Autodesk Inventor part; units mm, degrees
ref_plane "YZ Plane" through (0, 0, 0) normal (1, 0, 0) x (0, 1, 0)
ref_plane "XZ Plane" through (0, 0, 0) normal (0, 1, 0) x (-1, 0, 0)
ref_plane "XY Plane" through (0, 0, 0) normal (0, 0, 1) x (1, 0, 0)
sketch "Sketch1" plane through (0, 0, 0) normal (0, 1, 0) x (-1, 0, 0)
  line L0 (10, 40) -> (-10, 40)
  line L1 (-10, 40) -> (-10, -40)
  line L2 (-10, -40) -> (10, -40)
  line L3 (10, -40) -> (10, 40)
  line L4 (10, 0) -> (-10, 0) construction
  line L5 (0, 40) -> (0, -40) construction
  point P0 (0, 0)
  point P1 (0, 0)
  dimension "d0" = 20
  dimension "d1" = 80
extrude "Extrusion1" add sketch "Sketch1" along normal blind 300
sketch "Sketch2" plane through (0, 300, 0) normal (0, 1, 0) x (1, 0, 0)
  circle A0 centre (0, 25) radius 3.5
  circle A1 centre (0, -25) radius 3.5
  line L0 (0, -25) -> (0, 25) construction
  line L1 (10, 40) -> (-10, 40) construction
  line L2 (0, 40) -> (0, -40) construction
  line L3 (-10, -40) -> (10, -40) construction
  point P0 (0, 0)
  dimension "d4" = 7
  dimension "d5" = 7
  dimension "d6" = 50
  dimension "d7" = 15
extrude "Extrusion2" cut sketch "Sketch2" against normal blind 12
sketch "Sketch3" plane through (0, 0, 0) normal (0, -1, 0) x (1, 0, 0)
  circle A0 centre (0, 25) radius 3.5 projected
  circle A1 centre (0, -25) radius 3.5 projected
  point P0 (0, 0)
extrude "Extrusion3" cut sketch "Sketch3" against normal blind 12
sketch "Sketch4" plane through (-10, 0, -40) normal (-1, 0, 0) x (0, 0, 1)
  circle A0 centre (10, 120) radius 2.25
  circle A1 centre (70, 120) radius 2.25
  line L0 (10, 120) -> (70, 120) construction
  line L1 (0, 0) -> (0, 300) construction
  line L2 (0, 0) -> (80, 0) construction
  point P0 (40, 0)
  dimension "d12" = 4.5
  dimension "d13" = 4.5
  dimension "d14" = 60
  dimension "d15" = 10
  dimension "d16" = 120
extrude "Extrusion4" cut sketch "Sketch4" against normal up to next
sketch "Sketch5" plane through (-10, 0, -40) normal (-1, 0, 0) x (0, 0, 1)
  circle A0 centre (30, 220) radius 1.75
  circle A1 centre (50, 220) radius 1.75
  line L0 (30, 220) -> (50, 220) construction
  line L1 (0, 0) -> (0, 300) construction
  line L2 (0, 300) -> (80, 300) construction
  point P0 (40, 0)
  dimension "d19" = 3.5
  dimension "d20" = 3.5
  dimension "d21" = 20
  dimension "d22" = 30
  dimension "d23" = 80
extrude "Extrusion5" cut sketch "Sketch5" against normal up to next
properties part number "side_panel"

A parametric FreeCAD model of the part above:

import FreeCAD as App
import Part
import Sketcher


def add_polygon(sketch, points):
    """Adds a closed chain of lines whose ends are joined by coincident constraints."""
    first, n = sketch.GeometryCount, len(points)
    for a, b in zip(points, points[1:] + points[:1]):
        sketch.addGeometry(Part.LineSegment(App.Vector(*a, 0), App.Vector(*b, 0)), False)
    for i in range(n):
        sketch.addConstraint(Sketcher.Constraint("Coincident", first + i, 2, first + (i + 1) % n, 1))

doc = App.newDocument("Part")
body = doc.addObject("PartDesign::Body", "Body")

# Sketch on XZ plane
sketch1 = doc.addObject("Sketcher::SketchObject", "Sketch")
body.addObject(sketch1)
sketch1.AttachmentSupport = (doc.XZ_Plane, [""])
sketch1.MapMode = "FlatFace"
add_polygon(sketch1, [(-10, -40), (-10, 40), (10, 40), (10, -40)])  # lines 0-3
sketch1.addConstraint(Sketcher.Constraint("Vertical", 0))
sketch1.addConstraint(Sketcher.Constraint("Horizontal", 1))
sketch1.addConstraint(Sketcher.Constraint("Vertical", 2))
sketch1.addConstraint(Sketcher.Constraint("Horizontal", 3))
sketch1.addConstraint(Sketcher.Constraint("Symmetric", 0, 2, 2, 2, -1, 1))
sketch1.addConstraint(Sketcher.Constraint("DistanceX", 1, 1, 1, 2, 20.0))
sketch1.addConstraint(Sketcher.Constraint("DistanceY", 0, 1, 0, 2, 80.0))
pad1 = doc.addObject("PartDesign::Pad", "Pad")
body.addObject(pad1)
pad1.Profile = sketch1
pad1.Length = 300
pad1.Reversed = True

# Sketch on XZ plane
sketch2 = doc.addObject("Sketcher::SketchObject", "Sketch001")
body.addObject(sketch2)
sketch2.AttachmentSupport = (doc.XZ_Plane, [""])
sketch2.MapMode = "FlatFace"
sketch2.AttachmentOffset = App.Placement(App.Vector(0, 0, -300), App.Rotation())
sketch2.addGeometry(Part.Circle(App.Vector(0, -25, 0), App.Vector(0, 0, 1), 3.5), False)
sketch2.addGeometry(Part.Circle(App.Vector(0, 25, 0), App.Vector(0, 0, 1), 3.5), False)
sketch2.addConstraint(Sketcher.Constraint("Equal", 0, 1))
sketch2.addConstraint(Sketcher.Constraint("Symmetric", 0, 3, 1, 3, -1, 1))
sketch2.addConstraint(Sketcher.Constraint("PointOnObject", 0, 3, -2))
sketch2.addConstraint(Sketcher.Constraint("Diameter", 0, 7.0))
sketch2.addConstraint(Sketcher.Constraint("DistanceY", 0, 3, 1, 3, 50.0))
pocket1 = doc.addObject("PartDesign::Pocket", "Pocket")
body.addObject(pocket1)
pocket1.Profile = sketch2
pocket1.Length = 12
pocket1.Reversed = True

# Sketch on XZ plane
sketch3 = doc.addObject("Sketcher::SketchObject", "Sketch002")
body.addObject(sketch3)
sketch3.AttachmentSupport = (doc.XZ_Plane, [""])
sketch3.MapMode = "FlatFace"
sketch3.addGeometry(Part.Circle(App.Vector(0, 25, 0), App.Vector(0, 0, 1), 3.5), False)
sketch3.addGeometry(Part.Circle(App.Vector(0, -25, 0), App.Vector(0, 0, 1), 3.5), False)
sketch3.addConstraint(Sketcher.Constraint("Equal", 0, 1))
sketch3.addConstraint(Sketcher.Constraint("Symmetric", 0, 3, 1, 3, -1, 1))
sketch3.addConstraint(Sketcher.Constraint("PointOnObject", 0, 3, -2))
sketch3.addConstraint(Sketcher.Constraint("Diameter", 0, 7.0))
sketch3.addConstraint(Sketcher.Constraint("DistanceY", -1, 1, 0, 3, 25.0))
pocket2 = doc.addObject("PartDesign::Pocket", "Pocket001")
body.addObject(pocket2)
pocket2.Profile = sketch3
pocket2.Length = 12

# Sketch on YZ plane
sketch4 = doc.addObject("Sketcher::SketchObject", "Sketch003")
body.addObject(sketch4)
sketch4.AttachmentSupport = (doc.YZ_Plane, [""])
sketch4.MapMode = "FlatFace"
sketch4.AttachmentOffset = App.Placement(App.Vector(0, 0, -10), App.Rotation())
sketch4.addGeometry(Part.Circle(App.Vector(120, -30, 0), App.Vector(0, 0, 1), 2.25), False)
sketch4.addGeometry(Part.Circle(App.Vector(120, 30, 0), App.Vector(0, 0, 1), 2.25), False)
sketch4.addConstraint(Sketcher.Constraint("Equal", 0, 1))
sketch4.addConstraint(Sketcher.Constraint("Symmetric", 0, 3, 1, 3, -1))
sketch4.addConstraint(Sketcher.Constraint("Diameter", 0, 4.5))
sketch4.addConstraint(Sketcher.Constraint("DistanceX", -1, 1, 0, 3, 120.0))
sketch4.addConstraint(Sketcher.Constraint("DistanceY", 0, 3, 1, 3, 60.0))
pocket3 = doc.addObject("PartDesign::Pocket", "Pocket002")
body.addObject(pocket3)
pocket3.Profile = sketch4
pocket3.Type = "UpToFirst"
pocket3.Reversed = True

# Sketch on YZ plane
sketch5 = doc.addObject("Sketcher::SketchObject", "Sketch004")
body.addObject(sketch5)
sketch5.AttachmentSupport = (doc.YZ_Plane, [""])
sketch5.MapMode = "FlatFace"
sketch5.AttachmentOffset = App.Placement(App.Vector(0, 0, -10), App.Rotation())
sketch5.addGeometry(Part.Circle(App.Vector(220, -10, 0), App.Vector(0, 0, 1), 1.75), False)
sketch5.addGeometry(Part.Circle(App.Vector(220, 10, 0), App.Vector(0, 0, 1), 1.75), False)
sketch5.addConstraint(Sketcher.Constraint("Equal", 0, 1))
sketch5.addConstraint(Sketcher.Constraint("Symmetric", 0, 3, 1, 3, -1))
sketch5.addConstraint(Sketcher.Constraint("Diameter", 0, 3.5))
sketch5.addConstraint(Sketcher.Constraint("DistanceY", 0, 3, 1, 3, 20.0))
sketch5.addConstraint(Sketcher.Constraint("DistanceX", -1, 1, 0, 3, 220.0))
pocket4 = doc.addObject("PartDesign::Pocket", "Pocket003")
body.addObject(pocket4)
pocket4.Profile = sketch5
pocket4.Type = "UpToFirst"
pocket4.Reversed = True

doc.recompute()
